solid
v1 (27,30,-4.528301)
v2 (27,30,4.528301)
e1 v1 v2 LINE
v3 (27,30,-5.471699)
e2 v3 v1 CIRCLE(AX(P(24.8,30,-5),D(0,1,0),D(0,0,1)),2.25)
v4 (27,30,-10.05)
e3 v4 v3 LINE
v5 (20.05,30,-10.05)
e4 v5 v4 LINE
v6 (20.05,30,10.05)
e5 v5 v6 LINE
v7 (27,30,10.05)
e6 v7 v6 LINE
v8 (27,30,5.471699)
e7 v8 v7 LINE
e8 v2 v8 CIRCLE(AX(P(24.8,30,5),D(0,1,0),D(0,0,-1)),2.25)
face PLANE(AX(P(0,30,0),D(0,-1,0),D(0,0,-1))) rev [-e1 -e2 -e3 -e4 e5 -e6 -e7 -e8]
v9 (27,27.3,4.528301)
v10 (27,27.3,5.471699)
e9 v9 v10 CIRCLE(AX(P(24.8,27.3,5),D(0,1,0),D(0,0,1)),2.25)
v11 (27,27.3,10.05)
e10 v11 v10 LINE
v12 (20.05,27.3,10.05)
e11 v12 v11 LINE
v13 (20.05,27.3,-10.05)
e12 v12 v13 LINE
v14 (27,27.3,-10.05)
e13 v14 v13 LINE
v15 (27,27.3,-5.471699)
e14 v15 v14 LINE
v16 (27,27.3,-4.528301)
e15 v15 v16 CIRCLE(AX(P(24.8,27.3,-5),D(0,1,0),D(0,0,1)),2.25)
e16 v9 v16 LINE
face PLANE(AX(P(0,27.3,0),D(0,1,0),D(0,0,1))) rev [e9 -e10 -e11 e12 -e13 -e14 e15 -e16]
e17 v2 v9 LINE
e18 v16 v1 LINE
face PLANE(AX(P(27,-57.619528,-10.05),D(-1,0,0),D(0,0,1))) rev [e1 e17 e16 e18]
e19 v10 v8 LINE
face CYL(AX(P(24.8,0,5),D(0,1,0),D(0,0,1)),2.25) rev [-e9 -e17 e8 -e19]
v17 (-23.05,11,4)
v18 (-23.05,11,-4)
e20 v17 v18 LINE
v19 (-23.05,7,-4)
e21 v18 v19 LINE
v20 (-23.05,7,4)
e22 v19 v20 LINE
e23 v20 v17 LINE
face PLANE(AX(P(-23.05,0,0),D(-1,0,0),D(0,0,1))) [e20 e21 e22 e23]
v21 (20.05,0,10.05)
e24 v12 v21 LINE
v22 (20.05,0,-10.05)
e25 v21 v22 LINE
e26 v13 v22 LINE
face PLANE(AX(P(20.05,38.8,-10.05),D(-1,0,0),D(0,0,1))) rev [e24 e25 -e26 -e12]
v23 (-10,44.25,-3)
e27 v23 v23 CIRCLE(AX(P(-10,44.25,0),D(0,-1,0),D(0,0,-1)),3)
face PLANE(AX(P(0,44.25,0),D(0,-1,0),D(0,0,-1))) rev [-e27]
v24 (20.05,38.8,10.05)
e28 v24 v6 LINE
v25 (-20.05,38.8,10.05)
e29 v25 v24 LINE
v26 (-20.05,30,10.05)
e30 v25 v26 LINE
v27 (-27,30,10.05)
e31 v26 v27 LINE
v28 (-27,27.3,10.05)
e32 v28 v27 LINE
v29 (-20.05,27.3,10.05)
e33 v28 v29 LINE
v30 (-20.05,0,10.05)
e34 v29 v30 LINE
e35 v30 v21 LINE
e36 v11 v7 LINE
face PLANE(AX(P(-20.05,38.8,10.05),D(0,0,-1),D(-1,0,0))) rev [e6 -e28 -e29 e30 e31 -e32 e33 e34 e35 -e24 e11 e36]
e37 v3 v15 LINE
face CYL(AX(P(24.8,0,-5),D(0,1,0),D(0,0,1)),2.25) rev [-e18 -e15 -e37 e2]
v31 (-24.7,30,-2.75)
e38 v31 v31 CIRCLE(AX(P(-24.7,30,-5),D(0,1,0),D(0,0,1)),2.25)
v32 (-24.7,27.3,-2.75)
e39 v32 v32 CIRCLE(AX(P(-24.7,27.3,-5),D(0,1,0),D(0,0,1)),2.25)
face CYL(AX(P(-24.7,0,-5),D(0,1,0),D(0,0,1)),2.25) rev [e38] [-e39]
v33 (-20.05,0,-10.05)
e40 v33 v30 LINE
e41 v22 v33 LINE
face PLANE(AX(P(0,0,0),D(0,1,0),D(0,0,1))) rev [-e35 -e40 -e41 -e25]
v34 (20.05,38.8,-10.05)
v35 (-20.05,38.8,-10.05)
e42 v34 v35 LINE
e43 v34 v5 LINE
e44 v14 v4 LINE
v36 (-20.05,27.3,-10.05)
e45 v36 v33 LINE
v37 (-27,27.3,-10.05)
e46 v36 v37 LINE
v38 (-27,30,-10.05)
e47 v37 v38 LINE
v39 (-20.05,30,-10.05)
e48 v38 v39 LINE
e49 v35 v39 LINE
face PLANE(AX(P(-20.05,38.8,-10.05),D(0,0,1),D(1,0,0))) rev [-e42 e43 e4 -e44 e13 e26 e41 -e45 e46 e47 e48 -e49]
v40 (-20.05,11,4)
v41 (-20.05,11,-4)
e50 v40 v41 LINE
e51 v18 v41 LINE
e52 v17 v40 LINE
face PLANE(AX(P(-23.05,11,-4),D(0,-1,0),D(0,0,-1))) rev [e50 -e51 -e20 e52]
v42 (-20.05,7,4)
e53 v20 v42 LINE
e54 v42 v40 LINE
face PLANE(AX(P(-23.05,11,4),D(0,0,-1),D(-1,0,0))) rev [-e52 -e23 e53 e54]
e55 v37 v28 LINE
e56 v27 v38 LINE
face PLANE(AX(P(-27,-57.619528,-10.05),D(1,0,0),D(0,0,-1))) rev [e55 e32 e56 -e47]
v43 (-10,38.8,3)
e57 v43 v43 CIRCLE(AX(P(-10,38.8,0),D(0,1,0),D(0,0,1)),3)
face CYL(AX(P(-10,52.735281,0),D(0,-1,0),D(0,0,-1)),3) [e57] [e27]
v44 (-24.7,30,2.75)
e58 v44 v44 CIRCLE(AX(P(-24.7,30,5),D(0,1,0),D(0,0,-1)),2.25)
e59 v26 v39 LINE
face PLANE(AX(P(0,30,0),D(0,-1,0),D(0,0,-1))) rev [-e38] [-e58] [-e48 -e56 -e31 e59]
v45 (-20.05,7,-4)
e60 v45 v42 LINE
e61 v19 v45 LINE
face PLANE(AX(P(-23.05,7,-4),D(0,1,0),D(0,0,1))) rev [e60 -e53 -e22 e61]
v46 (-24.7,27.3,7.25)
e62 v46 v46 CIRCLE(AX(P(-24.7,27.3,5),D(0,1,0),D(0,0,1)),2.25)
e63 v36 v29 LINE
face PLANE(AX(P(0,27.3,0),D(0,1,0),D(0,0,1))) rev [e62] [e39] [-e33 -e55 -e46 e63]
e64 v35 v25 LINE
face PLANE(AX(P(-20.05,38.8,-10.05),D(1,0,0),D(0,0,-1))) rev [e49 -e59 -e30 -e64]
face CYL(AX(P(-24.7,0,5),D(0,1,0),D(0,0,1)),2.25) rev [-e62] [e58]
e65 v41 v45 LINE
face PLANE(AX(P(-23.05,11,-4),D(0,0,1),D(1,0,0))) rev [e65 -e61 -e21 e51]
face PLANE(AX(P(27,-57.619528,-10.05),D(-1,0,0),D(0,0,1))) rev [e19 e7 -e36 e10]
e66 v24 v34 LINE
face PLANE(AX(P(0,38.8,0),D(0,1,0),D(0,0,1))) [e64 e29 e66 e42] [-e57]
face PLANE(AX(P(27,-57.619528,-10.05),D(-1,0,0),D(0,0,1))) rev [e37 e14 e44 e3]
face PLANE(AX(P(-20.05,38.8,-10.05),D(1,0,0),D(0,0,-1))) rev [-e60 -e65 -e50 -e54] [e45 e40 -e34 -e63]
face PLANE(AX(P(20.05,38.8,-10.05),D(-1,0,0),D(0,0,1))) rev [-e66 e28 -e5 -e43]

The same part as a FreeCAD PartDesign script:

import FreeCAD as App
import Part
import Sketcher

V = App.Vector
Q = App.Units.Quantity


def add_polygon(sketch, points):
    """Adds a closed chain of lines whose ends are joined by coincident constraints."""
    first, n = sketch.GeometryCount, len(points)
    for a, b in zip(points, points[1:] + points[:1]):
        sketch.addGeometry(Part.LineSegment(App.Vector(*a, 0), App.Vector(*b, 0)), False)
    for i in range(n):
        sketch.addConstraint(Sketcher.Constraint("Coincident", first + i, 2, first + (i + 1) % n, 1))

doc = App.newDocument("Part")
params = doc.addObject("Spreadsheet::Sheet", "Params")
for row, (alias, value) in enumerate([
    ("sketch1_width", "40.1 mm"),
    ("sketch1_height", "20.1 mm"),
    ("pad1_length", "38.8 mm"),
    ("sketch2_width", "54 mm"),
    ("sketch2_height", "20.1 mm"),
    ("pad2_length", "2.7 mm"),
    ("sketch3_diameter", "6 mm"),
    ("pad3_length", "5.45 mm"),
    ("sketch4_diameter", "4.5 mm"),
    ("sketch5_width", "4 mm"),
    ("sketch5_height", "8 mm"),
    ("pad4_length", "3 mm"),
], start=1):
    params.set(f"A{row}", alias)
    params.set(f"B{row}", "=" + value)
    params.setAlias(f"B{row}", alias)

body = doc.addObject("PartDesign::Body", "Body")

# Sketch on XZ plane
sketch1 = doc.addObject("Sketcher::SketchObject", "Sketch")
body.addObject(sketch1)
sketch1.AttachmentSupport = (doc.XZ_Plane, [""])
sketch1.MapMode = "FlatFace"
add_polygon(sketch1, [(-20.05, -10.05), (-20.05, 10.05), (20.05, 10.05), (20.05, -10.05)])  # lines 0-3
sketch1.addConstraint([
    Sketcher.Constraint("Vertical", 0),
    Sketcher.Constraint("Horizontal", 1),
    Sketcher.Constraint("Vertical", 2),
    Sketcher.Constraint("Horizontal", 3),
    Sketcher.Constraint("Symmetric", 0, 2, 2, 2, -1, 1),
    Sketcher.Constraint("DistanceX", 1, 1, 1, 2, Q("40.1 mm")),
    Sketcher.Constraint("DistanceY", 0, 1, 0, 2, Q("20.1 mm")),
])
sketch1.setExpression("Constraints[9]", "Params.sketch1_width")
sketch1.setExpression("Constraints[10]", "Params.sketch1_height")
pad1 = doc.addObject("PartDesign::Pad", "Pad")
body.addObject(pad1)
pad1.Profile = sketch1
pad1.setExpression("Length", "Params.pad1_length")
pad1.Reversed = True

# Sketch on XZ plane
sketch2 = doc.addObject("Sketcher::SketchObject", "Sketch001")
body.addObject(sketch2)
sketch2.AttachmentSupport = (doc.XZ_Plane, [""])
sketch2.MapMode = "FlatFace"
sketch2.AttachmentOffset = App.Placement(V(0, 0, -30), App.Rotation())
add_polygon(sketch2, [(27, -10.05), (27, 10.05), (-27, 10.05), (-27, -10.05)])  # lines 0-3
sketch2.addConstraint([
    Sketcher.Constraint("Vertical", 0),
    Sketcher.Constraint("Horizontal", 1),
    Sketcher.Constraint("Vertical", 2),
    Sketcher.Constraint("Horizontal", 3),
    Sketcher.Constraint("Symmetric", 0, 2, 2, 2, -1, 1),
    Sketcher.Constraint("DistanceX", 1, 2, 1, 1, Q("54 mm")),
    Sketcher.Constraint("DistanceY", 0, 1, 0, 2, Q("20.1 mm")),
])
sketch2.setExpression("Constraints[9]", "Params.sketch2_width")
sketch2.setExpression("Constraints[10]", "Params.sketch2_height")
pad2 = doc.addObject("PartDesign::Pad", "Pad001")
body.addObject(pad2)
pad2.Profile = sketch2
pad2.setExpression("Length", "Params.pad2_length")

# Sketch on XZ plane
sketch3 = doc.addObject("Sketcher::SketchObject", "Sketch002")
body.addObject(sketch3)
sketch3.AttachmentSupport = (doc.XZ_Plane, [""])
sketch3.MapMode = "FlatFace"
sketch3.AttachmentOffset = App.Placement(V(0, 0, -38.8), App.Rotation())
sketch3.addGeometry(Part.Circle(V(-10, 0, 0), V(0, 0, 1), 3), False)
sketch3.addConstraint([
    Sketcher.Constraint("PointOnObject", 0, 3, -1),
    Sketcher.Constraint("Diameter", 0, Q("6 mm")),
    Sketcher.Constraint("DistanceX", 0, 3, -1, 1, Q("10 mm")),
])
sketch3.setExpression("Constraints[1]", "Params.sketch3_diameter")
pad3 = doc.addObject("PartDesign::Pad", "Pad002")
body.addObject(pad3)
pad3.Profile = sketch3
pad3.setExpression("Length", "Params.pad3_length")
pad3.Reversed = True

# Sketch on XZ plane
sketch4 = doc.addObject("Sketcher::SketchObject", "Sketch003")
body.addObject(sketch4)
sketch4.AttachmentSupport = (doc.XZ_Plane, [""])
sketch4.MapMode = "FlatFace"
sketch4.AttachmentOffset = App.Placement(V(0, 0, -30), App.Rotation())
sketch4.addGeometry([
    Part.Circle(V(24.8, -5, 0), V(0, 0, 1), 2.25),
    Part.Circle(V(24.8, 5, 0), V(0, 0, 1), 2.25),
    Part.Circle(V(-24.7, -5, 0), V(0, 0, 1), 2.25),
    Part.Circle(V(-24.7, 5, 0), V(0, 0, 1), 2.25),
], False)
sketch4.addConstraint([
    Sketcher.Constraint("Equal", 0, 1),
    Sketcher.Constraint("Equal", 1, 2),
    Sketcher.Constraint("Equal", 2, 3),
    Sketcher.Constraint("Symmetric", 0, 3, 1, 3, -1),
    Sketcher.Constraint("Symmetric", 2, 3, 3, 3, -1),
    Sketcher.Constraint("Horizontal", 0, 3, 2, 3),
    Sketcher.Constraint("Diameter", 0, Q("4.5 mm")),
    Sketcher.Constraint("DistanceY", 0, 3, -1, 1, Q("5 mm")),
    Sketcher.Constraint("DistanceX", -1, 1, 0, 3, Q("24.8 mm")),
    Sketcher.Constraint("DistanceX", 2, 3, -1, 1, Q("24.7 mm")),
])
sketch4.setExpression("Constraints[6]", "Params.sketch4_diameter")
pocket1 = doc.addObject("PartDesign::Pocket", "Pocket")
body.addObject(pocket1)
pocket1.Profile = sketch4
pocket1.Type = "ThroughAll"
pocket1.Reversed = True

# Sketch on YZ plane
sketch5 = doc.addObject("Sketcher::SketchObject", "Sketch004")
body.addObject(sketch5)
sketch5.AttachmentSupport = (doc.YZ_Plane, [""])
sketch5.MapMode = "FlatFace"
sketch5.AttachmentOffset = App.Placement(V(0, 0, -20.05), App.Rotation())
add_polygon(sketch5, [(11, -4), (7, -4), (7, 4), (11, 4)])  # lines 0-3
sketch5.addConstraint([
    Sketcher.Constraint("Horizontal", 0),
    Sketcher.Constraint("Vertical", 1),
    Sketcher.Constraint("Horizontal", 2),
    Sketcher.Constraint("Vertical", 3),
    Sketcher.Constraint("DistanceX", 0, 2, 0, 1, Q("4 mm")),
    Sketcher.Constraint("DistanceY", 1, 1, 1, 2, Q("8 mm")),
    Sketcher.Constraint("DistanceX", -1, 1, 0, 2, Q("7 mm")),
    Sketcher.Constraint("DistanceY", 0, 2, -1, 1, Q("4 mm")),
])
sketch5.setExpression("Constraints[8]", "Params.sketch5_width")
sketch5.setExpression("Constraints[9]", "Params.sketch5_height")
pad4 = doc.addObject("PartDesign::Pad", "Pad003")
body.addObject(pad4)
pad4.Profile = sketch5
pad4.setExpression("Length", "Params.pad4_length")
pad4.Reversed = True

doc.recompute()
